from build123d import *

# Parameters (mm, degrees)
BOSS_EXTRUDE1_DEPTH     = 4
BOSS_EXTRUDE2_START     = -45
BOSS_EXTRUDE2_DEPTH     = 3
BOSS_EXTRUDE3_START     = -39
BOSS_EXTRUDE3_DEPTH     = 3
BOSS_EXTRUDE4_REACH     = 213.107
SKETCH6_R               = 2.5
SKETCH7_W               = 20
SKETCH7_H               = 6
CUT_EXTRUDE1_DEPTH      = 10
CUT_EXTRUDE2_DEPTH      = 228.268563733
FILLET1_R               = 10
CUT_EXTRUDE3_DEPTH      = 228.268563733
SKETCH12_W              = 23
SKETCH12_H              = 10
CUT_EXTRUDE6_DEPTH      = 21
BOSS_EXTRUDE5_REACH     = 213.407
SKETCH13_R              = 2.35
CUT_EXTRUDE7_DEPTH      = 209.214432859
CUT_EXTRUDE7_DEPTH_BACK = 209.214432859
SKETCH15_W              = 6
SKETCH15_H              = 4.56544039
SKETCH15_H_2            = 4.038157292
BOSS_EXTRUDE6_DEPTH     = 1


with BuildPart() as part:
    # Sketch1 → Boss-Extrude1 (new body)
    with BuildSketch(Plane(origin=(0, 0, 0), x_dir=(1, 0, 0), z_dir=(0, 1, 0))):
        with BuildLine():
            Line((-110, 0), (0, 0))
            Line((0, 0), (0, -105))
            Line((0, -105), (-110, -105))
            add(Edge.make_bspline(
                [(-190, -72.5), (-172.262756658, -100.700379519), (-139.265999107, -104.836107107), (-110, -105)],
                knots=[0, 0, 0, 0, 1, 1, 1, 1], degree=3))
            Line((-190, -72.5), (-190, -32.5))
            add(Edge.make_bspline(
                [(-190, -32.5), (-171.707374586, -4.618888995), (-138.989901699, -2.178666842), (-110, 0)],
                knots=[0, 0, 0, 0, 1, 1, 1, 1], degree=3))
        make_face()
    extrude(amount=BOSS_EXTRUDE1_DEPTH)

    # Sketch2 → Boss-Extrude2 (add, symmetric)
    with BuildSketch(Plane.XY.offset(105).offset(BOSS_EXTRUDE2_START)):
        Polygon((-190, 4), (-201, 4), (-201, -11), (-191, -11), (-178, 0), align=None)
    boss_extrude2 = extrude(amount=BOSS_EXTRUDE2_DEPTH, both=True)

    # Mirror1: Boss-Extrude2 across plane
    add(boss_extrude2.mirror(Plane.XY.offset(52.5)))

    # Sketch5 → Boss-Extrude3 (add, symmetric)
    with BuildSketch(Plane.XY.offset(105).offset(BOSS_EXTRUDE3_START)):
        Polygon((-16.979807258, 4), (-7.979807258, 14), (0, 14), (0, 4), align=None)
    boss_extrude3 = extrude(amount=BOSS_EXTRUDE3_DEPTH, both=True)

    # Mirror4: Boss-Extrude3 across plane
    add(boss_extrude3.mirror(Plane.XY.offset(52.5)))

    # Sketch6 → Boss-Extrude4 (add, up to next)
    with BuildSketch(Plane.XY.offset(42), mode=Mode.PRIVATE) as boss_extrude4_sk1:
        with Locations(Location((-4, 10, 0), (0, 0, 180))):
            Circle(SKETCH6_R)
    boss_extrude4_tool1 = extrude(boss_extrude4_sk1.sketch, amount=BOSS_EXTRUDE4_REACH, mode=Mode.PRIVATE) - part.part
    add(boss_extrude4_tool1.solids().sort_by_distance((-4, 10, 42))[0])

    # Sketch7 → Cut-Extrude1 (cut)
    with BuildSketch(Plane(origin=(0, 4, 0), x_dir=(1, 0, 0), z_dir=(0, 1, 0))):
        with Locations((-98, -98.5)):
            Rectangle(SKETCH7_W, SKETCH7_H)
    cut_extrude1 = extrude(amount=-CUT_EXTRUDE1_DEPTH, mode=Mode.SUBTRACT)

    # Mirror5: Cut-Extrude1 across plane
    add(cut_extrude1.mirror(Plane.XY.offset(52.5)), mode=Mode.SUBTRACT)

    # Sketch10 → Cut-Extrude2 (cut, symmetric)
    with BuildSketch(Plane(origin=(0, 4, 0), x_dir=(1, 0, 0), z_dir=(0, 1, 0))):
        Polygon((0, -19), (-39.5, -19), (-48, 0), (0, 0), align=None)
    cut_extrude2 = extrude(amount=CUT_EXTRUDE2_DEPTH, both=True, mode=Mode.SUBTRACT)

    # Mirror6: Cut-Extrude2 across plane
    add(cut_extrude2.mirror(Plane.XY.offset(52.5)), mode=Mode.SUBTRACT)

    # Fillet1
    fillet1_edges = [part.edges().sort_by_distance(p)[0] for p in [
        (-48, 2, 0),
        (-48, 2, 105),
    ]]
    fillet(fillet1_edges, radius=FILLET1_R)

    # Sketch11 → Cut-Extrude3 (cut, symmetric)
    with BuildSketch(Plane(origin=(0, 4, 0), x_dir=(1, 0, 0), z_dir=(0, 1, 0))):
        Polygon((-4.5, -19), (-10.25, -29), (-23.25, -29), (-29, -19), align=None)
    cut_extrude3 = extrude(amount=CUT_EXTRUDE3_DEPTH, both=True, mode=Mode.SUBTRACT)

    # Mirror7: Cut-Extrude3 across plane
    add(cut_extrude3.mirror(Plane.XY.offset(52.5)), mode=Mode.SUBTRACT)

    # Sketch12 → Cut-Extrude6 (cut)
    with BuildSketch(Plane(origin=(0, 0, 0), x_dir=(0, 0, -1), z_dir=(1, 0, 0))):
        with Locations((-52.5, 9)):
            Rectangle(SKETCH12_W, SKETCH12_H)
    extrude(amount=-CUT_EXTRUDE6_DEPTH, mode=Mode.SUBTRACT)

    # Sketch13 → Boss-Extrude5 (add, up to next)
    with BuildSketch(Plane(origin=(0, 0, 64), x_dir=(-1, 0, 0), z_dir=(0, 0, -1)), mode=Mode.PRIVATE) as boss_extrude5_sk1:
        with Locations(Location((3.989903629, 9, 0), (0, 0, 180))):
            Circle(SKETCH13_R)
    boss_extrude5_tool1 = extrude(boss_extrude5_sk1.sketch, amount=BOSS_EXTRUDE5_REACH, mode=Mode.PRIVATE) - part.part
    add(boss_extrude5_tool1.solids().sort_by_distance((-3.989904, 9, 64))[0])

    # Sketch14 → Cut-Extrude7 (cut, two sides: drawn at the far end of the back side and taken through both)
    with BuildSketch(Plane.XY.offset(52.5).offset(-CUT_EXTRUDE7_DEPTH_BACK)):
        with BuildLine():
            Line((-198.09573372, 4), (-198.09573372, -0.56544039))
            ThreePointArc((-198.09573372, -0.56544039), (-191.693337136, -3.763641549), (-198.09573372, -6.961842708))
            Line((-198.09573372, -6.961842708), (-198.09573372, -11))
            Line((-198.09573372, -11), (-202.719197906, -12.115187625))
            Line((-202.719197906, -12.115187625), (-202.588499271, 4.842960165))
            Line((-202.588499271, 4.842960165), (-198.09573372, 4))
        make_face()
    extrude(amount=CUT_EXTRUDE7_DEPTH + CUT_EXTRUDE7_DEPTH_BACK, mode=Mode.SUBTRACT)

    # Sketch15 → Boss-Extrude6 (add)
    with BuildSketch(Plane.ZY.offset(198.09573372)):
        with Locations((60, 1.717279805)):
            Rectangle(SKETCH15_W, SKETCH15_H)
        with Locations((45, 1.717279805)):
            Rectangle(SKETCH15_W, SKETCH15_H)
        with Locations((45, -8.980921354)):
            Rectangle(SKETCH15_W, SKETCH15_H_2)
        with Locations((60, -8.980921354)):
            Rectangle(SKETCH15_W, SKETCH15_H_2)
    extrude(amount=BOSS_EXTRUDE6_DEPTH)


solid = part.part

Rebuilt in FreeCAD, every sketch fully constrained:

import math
import FreeCAD as App
import Part
import Sketcher
from FreeCAD import Vector
Q = App.Units.Quantity


def edges_at(feature, points):
    """Names of the edges that pass closest to the given points."""
    edges = feature.Shape.Edges
    near = lambda p: min(range(len(edges)), key=lambda i: edges[i].distToShape(Part.Vertex(*p))[0])
    return sorted({f"Edge{near(p) + 1}" for p in points})


def add_polygon(sketch, points):
    """Adds a closed chain of lines whose ends are joined by coincident constraints."""
    first, n = sketch.GeometryCount, len(points)
    for a, b in zip(points, points[1:] + points[:1]):
        sketch.addGeometry(Part.LineSegment(App.Vector(*a, 0), App.Vector(*b, 0)), False)
    for i in range(n):
        sketch.addConstraint(Sketcher.Constraint("Coincident", first + i, 2, first + (i + 1) % n, 1))

doc = App.newDocument("Part")
body = doc.addObject("PartDesign::Body", "Body")

# Sketch on XZ plane
sketch1 = doc.addObject("Sketcher::SketchObject", "Sketch")
body.addObject(sketch1)
sketch1.AttachmentSupport = (doc.XZ_Plane, [""])
sketch1.MapMode = "FlatFace"
sketch1.addGeometry(Part.LineSegment(Vector(0, 0, 0), Vector(-110, 0, 0)), False)
sketch1.addGeometry(Part.BSplineCurve([Vector(-190, 32.5, 0), Vector(-171.707375, 4.618889, 0), Vector(-138.989902, 2.178667, 0), Vector(-110, 0, 0)], [4, 4], [0, 1], False, 3, [1, 1, 1, 1], False), False)
sketch1.addGeometry(Part.LineSegment(Vector(-190, 32.5, 0), Vector(-190, 72.5, 0)), False)
sketch1.addGeometry(Part.BSplineCurve([Vector(-190, 72.5, 0), Vector(-172.262757, 100.70038, 0), Vector(-139.265999, 104.836107, 0), Vector(-110, 105, 0)], [4, 4], [0, 1], False, 3, [1, 1, 1, 1], False), False)
sketch1.addGeometry(Part.LineSegment(Vector(-110, 105, 0), Vector(0, 105, 0)), False)
sketch1.addGeometry(Part.LineSegment(Vector(0, 105, 0), Vector(0, 0, 0)), False)
sketch1.addConstraint(Sketcher.Constraint("Block", 1))
sketch1.addConstraint(Sketcher.Constraint("Block", 3))
sketch1.addConstraint(Sketcher.Constraint("Coincident", 0, 2, 1, 2))
sketch1.addConstraint(Sketcher.Constraint("Coincident", 1, 1, 2, 1))
sketch1.addConstraint(Sketcher.Constraint("Coincident", 2, 2, 3, 1))
sketch1.addConstraint(Sketcher.Constraint("Coincident", 3, 2, 4, 1))
sketch1.addConstraint(Sketcher.Constraint("Coincident", 4, 2, 5, 1))
sketch1.addConstraint(Sketcher.Constraint("Coincident", 5, 2, 0, 1))
sketch1.addConstraint(Sketcher.Constraint("Horizontal", 0))
sketch1.addConstraint(Sketcher.Constraint("Horizontal", 4))
sketch1.addConstraint(Sketcher.Constraint("Vertical", 5))
sketch1.addConstraint(Sketcher.Constraint("PointOnObject", 4, 2, -2))
pad1 = doc.addObject("PartDesign::Pad", "Pad")
body.addObject(pad1)
pad1.Profile = sketch1
pad1.Length = 4
pad1.Reversed = True

# Sketch on XY plane
sketch2 = doc.addObject("Sketcher::SketchObject", "Sketch001")
body.addObject(sketch2)
sketch2.AttachmentSupport = (doc.XY_Plane, [""])
sketch2.MapMode = "FlatFace"
sketch2.AttachmentOffset = App.Placement(Vector(0, 0, 60), App.Rotation())
add_polygon(sketch2, [(-190, 4), (-201, 4), (-201, -11), (-191, -11), (-178, 0)])  # lines 0-4
sketch2.addConstraint(Sketcher.Constraint("Horizontal", 0))
sketch2.addConstraint(Sketcher.Constraint("Vertical", 1))
sketch2.addConstraint(Sketcher.Constraint("Horizontal", 2))
sketch2.addConstraint(Sketcher.Constraint("PointOnObject", 3, 2, -1))
sketch2.addConstraint(Sketcher.Constraint("DistanceX", 0, 2, 0, 1, Q("11 mm")))
sketch2.addConstraint(Sketcher.Constraint("DistanceX", 2, 1, 2, 2, Q("10 mm")))
sketch2.addConstraint(Sketcher.Constraint("DistanceY", 1, 2, 1, 1, Q("15 mm")))
sketch2.addConstraint(Sketcher.Constraint("DistanceX", 0, 2, -1, 1, Q("201 mm")))
sketch2.addConstraint(Sketcher.Constraint("DistanceY", -1, 1, 0, 2, Q("4 mm")))
sketch2.addConstraint(Sketcher.Constraint("DistanceX", 3, 2, -1, 1, Q("178 mm")))
pad2 = doc.addObject("PartDesign::Pad", "Pad001")
body.addObject(pad2)
pad2.Profile = sketch2
pad2.Length = 6
pad2.Midplane = True
doc.recompute()

datumplane = doc.addObject("PartDesign::Plane", "DatumPlane")
body.addObject(datumplane)
datumplane.AttachmentSupport = (doc.XY_Plane, [""])
datumplane.MapMode = "FlatFace"
datumplane.AttachmentOffset = App.Placement(Vector(0, 0, 52.5), App.Rotation())
mirrored = doc.addObject("PartDesign::Mirrored", "Mirrored")
body.addObject(mirrored)
mirrored.Originals = [pad2]
mirrored.MirrorPlane = (datumplane, [""])
body.Tip = mirrored

# Sketch on XY plane
sketch3 = doc.addObject("Sketcher::SketchObject", "Sketch002")
body.addObject(sketch3)
sketch3.AttachmentSupport = (doc.XY_Plane, [""])
sketch3.MapMode = "FlatFace"
sketch3.AttachmentOffset = App.Placement(Vector(0, 0, 66), App.Rotation())
add_polygon(sketch3, [(-8, 14), (-17, 4), (0, 4), (0, 14)])  # lines 0-3
sketch3.addConstraint(Sketcher.Constraint("Horizontal", 1))
sketch3.addConstraint(Sketcher.Constraint("Vertical", 2))
sketch3.addConstraint(Sketcher.Constraint("Horizontal", 3))
sketch3.addConstraint(Sketcher.Constraint("PointOnObject", 1, 2, -2))
sketch3.addConstraint(Sketcher.Constraint("DistanceY", 2, 1, 2, 2, Q("10 mm")))
sketch3.addConstraint(Sketcher.Constraint("DistanceY", -1, 1, 0, 2, Q("4 mm")))
sketch3.addConstraint(Sketcher.Constraint("DistanceX", 0, 2, 3, 2, Q("9 mm")))
sketch3.addConstraint(Sketcher.Constraint("DistanceX", 1, 1, 1, 2, Q("16.979807 mm")))
pad3 = doc.addObject("PartDesign::Pad", "Pad002")
body.addObject(pad3)
pad3.Profile = sketch3
pad3.Length = 6
pad3.Midplane = True
doc.recompute()

datumplane2 = doc.addObject("PartDesign::Plane", "DatumPlane001")
body.addObject(datumplane2)
datumplane2.AttachmentSupport = (doc.XY_Plane, [""])
datumplane2.MapMode = "FlatFace"
datumplane2.AttachmentOffset = App.Placement(Vector(0, 0, 52.5), App.Rotation())
mirrored2 = doc.addObject("PartDesign::Mirrored", "Mirrored001")
body.addObject(mirrored2)
mirrored2.Originals = [pad3]
mirrored2.MirrorPlane = (datumplane2, [""])
body.Tip = mirrored2

# Sketch on XY plane
sketch4 = doc.addObject("Sketcher::SketchObject", "Sketch003")
body.addObject(sketch4)
sketch4.AttachmentSupport = (doc.XY_Plane, [""])
sketch4.MapMode = "FlatFace"
sketch4.AttachmentOffset = App.Placement(Vector(0, 0, 42), App.Rotation())
sketch4.addGeometry(Part.Circle(Vector(-4, 10, 0), Vector(0, 0, 1), 2.5), False)
sketch4.addConstraint(Sketcher.Constraint("Diameter", 0, Q("5 mm")))
sketch4.addConstraint(Sketcher.Constraint("DistanceX", 0, 3, -1, 1, Q("4 mm")))
sketch4.addConstraint(Sketcher.Constraint("DistanceY", -1, 1, 0, 3, Q("10 mm")))
pad4 = doc.addObject("PartDesign::Pad", "Pad003")
body.addObject(pad4)
pad4.Profile = sketch4
pad4.Type = "UpToFirst"

# Sketch on XZ plane
sketch5 = doc.addObject("Sketcher::SketchObject", "Sketch004")
body.addObject(sketch5)
sketch5.AttachmentSupport = (doc.XZ_Plane, [""])
sketch5.MapMode = "FlatFace"
sketch5.AttachmentOffset = App.Placement(Vector(0, 0, -4), App.Rotation())
add_polygon(sketch5, [(-108, 96), (-108, 102), (-88, 102), (-88, 96)])  # lines 0-3
sketch5.addConstraint(Sketcher.Constraint("Vertical", 0))
sketch5.addConstraint(Sketcher.Constraint("Horizontal", 1))
sketch5.addConstraint(Sketcher.Constraint("Vertical", 2))
sketch5.addConstraint(Sketcher.Constraint("Horizontal", 3))
sketch5.addConstraint(Sketcher.Constraint("DistanceX", 1, 1, 1, 2, Q("20 mm")))
sketch5.addConstraint(Sketcher.Constraint("DistanceY", 0, 1, 0, 2, Q("6 mm")))
sketch5.addConstraint(Sketcher.Constraint("DistanceX", 0, 2, -1, 1, Q("108 mm")))
sketch5.addConstraint(Sketcher.Constraint("DistanceY", -1, 1, 0, 2, Q("101.5 mm")))
pocket1 = doc.addObject("PartDesign::Pocket", "Pocket")
body.addObject(pocket1)
pocket1.Profile = sketch5
pocket1.Length = 10
pocket1.Reversed = True
doc.recompute()

datumplane3 = doc.addObject("PartDesign::Plane", "DatumPlane002")
body.addObject(datumplane3)
datumplane3.AttachmentSupport = (doc.XY_Plane, [""])
datumplane3.MapMode = "FlatFace"
datumplane3.AttachmentOffset = App.Placement(Vector(0, 0, 52.5), App.Rotation())
mirrored3 = doc.addObject("PartDesign::Mirrored", "Mirrored002")
body.addObject(mirrored3)
mirrored3.Originals = [pocket1]
mirrored3.MirrorPlane = (datumplane3, [""])
body.Tip = mirrored3

# Sketch on XZ plane
sketch6 = doc.addObject("Sketcher::SketchObject", "Sketch005")
body.addObject(sketch6)
sketch6.AttachmentSupport = (doc.XZ_Plane, [""])
sketch6.MapMode = "FlatFace"
sketch6.AttachmentOffset = App.Placement(Vector(0, 0, -4), App.Rotation())
add_polygon(sketch6, [(-40, 19), (0, 19), (0, 0), (-48, 0)])  # lines 0-3
sketch6.addConstraint(Sketcher.Constraint("Horizontal", 0))
sketch6.addConstraint(Sketcher.Constraint("Vertical", 1))
sketch6.addConstraint(Sketcher.Constraint("Horizontal", 2))
sketch6.addConstraint(Sketcher.Constraint("Coincident", 1, 2, -1, 1))
sketch6.addConstraint(Sketcher.Constraint("DistanceX", 2, 2, 2, 1, Q("48 mm")))
sketch6.addConstraint(Sketcher.Constraint("DistanceY", 1, 2, 1, 1, Q("19 mm")))
sketch6.addConstraint(Sketcher.Constraint("DistanceX", 0, 1, 0, 2, Q("39.5 mm")))
pocket2 = doc.addObject("PartDesign::Pocket", "Pocket001")
body.addObject(pocket2)
pocket2.Profile = sketch6
pocket2.Length = 456.537127
pocket2.Midplane = True
doc.recompute()

datumplane4 = doc.addObject("PartDesign::Plane", "DatumPlane003")
body.addObject(datumplane4)
datumplane4.AttachmentSupport = (doc.XY_Plane, [""])
datumplane4.MapMode = "FlatFace"
datumplane4.AttachmentOffset = App.Placement(Vector(0, 0, 52.5), App.Rotation())
mirrored4 = doc.addObject("PartDesign::Mirrored", "Mirrored003")
body.addObject(mirrored4)
mirrored4.Originals = [pocket2]
mirrored4.MirrorPlane = (datumplane4, [""])
body.Tip = mirrored4
doc.recompute()

fillet = doc.addObject("PartDesign::Fillet", "Fillet")
body.addObject(fillet)
fillet.Base = (mirrored4, edges_at(mirrored4, [(-48, 2, 0), (-48, 2, 105)]))
fillet.Radius = 10

# Sketch on XZ plane
sketch7 = doc.addObject("Sketcher::SketchObject", "Sketch006")
body.addObject(sketch7)
sketch7.AttachmentSupport = (doc.XZ_Plane, [""])
sketch7.MapMode = "FlatFace"
sketch7.AttachmentOffset = App.Placement(Vector(0, 0, -4), App.Rotation())
add_polygon(sketch7, [(-10, 29), (-4, 19), (-29, 19), (-23, 29)])  # lines 0-3
sketch7.addConstraint(Sketcher.Constraint("Horizontal", 1))
sketch7.addConstraint(Sketcher.Constraint("Horizontal", 3))
sketch7.addConstraint(Sketcher.Constraint("Equal", 0, 2))
sketch7.addConstraint(Sketcher.Constraint("DistanceX", 3, 1, 3, 2, Q("13 mm")))
sketch7.addConstraint(Sketcher.Constraint("DistanceX", 1, 2, 1, 1, Q("24.5 mm")))
sketch7.addConstraint(Sketcher.Constraint("DistanceY", -1, 1, 0, 2, Q("19 mm")))
sketch7.addConstraint(Sketcher.Constraint("DistanceX", 1, 2, -1, 1, Q("29 mm")))
sketch7.addConstraint(Sketcher.Constraint("DistanceY", -1, 1, 2, 2, Q("29 mm")))
pocket3 = doc.addObject("PartDesign::Pocket", "Pocket002")
body.addObject(pocket3)
pocket3.Profile = sketch7
pocket3.Length = 456.537127
pocket3.Midplane = True
doc.recompute()

datumplane5 = doc.addObject("PartDesign::Plane", "DatumPlane004")
body.addObject(datumplane5)
datumplane5.AttachmentSupport = (doc.XY_Plane, [""])
datumplane5.MapMode = "FlatFace"
datumplane5.AttachmentOffset = App.Placement(Vector(0, 0, 52.5), App.Rotation())
mirrored5 = doc.addObject("PartDesign::Mirrored", "Mirrored004")
body.addObject(mirrored5)
mirrored5.Originals = [pocket3]
mirrored5.MirrorPlane = (datumplane5, [""])
body.Tip = mirrored5

# Sketch on YZ plane
sketch8 = doc.addObject("Sketcher::SketchObject", "Sketch007")
body.addObject(sketch8)
sketch8.AttachmentSupport = (doc.YZ_Plane, [""])
sketch8.MapMode = "FlatFace"
add_polygon(sketch8, [(14, 64), (4, 64), (4, 41), (14, 41)])  # lines 0-3
sketch8.addConstraint(Sketcher.Constraint("Horizontal", 0))
sketch8.addConstraint(Sketcher.Constraint("Vertical", 1))
sketch8.addConstraint(Sketcher.Constraint("Horizontal", 2))
sketch8.addConstraint(Sketcher.Constraint("Vertical", 3))
sketch8.addConstraint(Sketcher.Constraint("DistanceX", 0, 2, 0, 1, Q("10 mm")))
sketch8.addConstraint(Sketcher.Constraint("DistanceY", 1, 2, 1, 1, Q("23 mm")))
sketch8.addConstraint(Sketcher.Constraint("DistanceX", -1, 1, 0, 2, Q("4 mm")))
sketch8.addConstraint(Sketcher.Constraint("DistanceY", -1, 1, 0, 2, Q("64 mm")))
pocket4 = doc.addObject("PartDesign::Pocket", "Pocket003")
body.addObject(pocket4)
pocket4.Profile = sketch8
pocket4.Length = 21

# Sketch on XY plane
sketch9 = doc.addObject("Sketcher::SketchObject", "Sketch008")
body.addObject(sketch9)
sketch9.AttachmentSupport = (doc.XY_Plane, [""])
sketch9.MapMode = "FlatFace"
sketch9.AttachmentOffset = App.Placement(Vector(0, 0, 64), App.Rotation())
sketch9.addGeometry(Part.Circle(Vector(-4, 9, 0), Vector(0, 0, 1), 2.4), False)
sketch9.addConstraint(Sketcher.Constraint("Diameter", 0, Q("4.7 mm")))
sketch9.addConstraint(Sketcher.Constraint("DistanceY", -1, 1, 0, 3, Q("9 mm")))
sketch9.addConstraint(Sketcher.Constraint("DistanceX", 0, 3, -1, 1, Q("3.989904 mm")))
pad5 = doc.addObject("PartDesign::Pad", "Pad004")
body.addObject(pad5)
pad5.Profile = sketch9
pad5.Type = "UpToFirst"
pad5.Reversed = True

# Sketch on XY plane
sketch10 = doc.addObject("Sketcher::SketchObject", "Sketch009")
body.addObject(sketch10)
sketch10.AttachmentSupport = (doc.XY_Plane, [""])
sketch10.MapMode = "FlatFace"
sketch10.AttachmentOffset = App.Placement(Vector(0, 0, 52.5), App.Rotation())
sketch10.addGeometry(Part.LineSegment(Vector(-198.1, -0.6, 0), Vector(-198.1, 4, 0)), False)
sketch10.addGeometry(Part.LineSegment(Vector(-198.1, 4, 0), Vector(-202.6, 4.8, 0)), False)
sketch10.addGeometry(Part.LineSegment(Vector(-202.6, 4.8, 0), Vector(-202.7, -12.1, 0)), False)
sketch10.addGeometry(Part.LineSegment(Vector(-202.7, -12.1, 0), Vector(-198.1, -11, 0)), False)
sketch10.addGeometry(Part.LineSegment(Vector(-198.1, -11, 0), Vector(-198.1, -7, 0)), False)
sketch10.addGeometry(Part.ArcOfCircle(Part.Circle(Vector(-195.7, -3.8, 0), Vector(0, 0, 1), 4), math.radians(-127), math.radians(127)), False)
sketch10.addConstraint(Sketcher.Constraint("Coincident", 0, 2, 1, 1))
sketch10.addConstraint(Sketcher.Constraint("Coincident", 1, 2, 2, 1))
sketch10.addConstraint(Sketcher.Constraint("Coincident", 2, 2, 3, 1))
sketch10.addConstraint(Sketcher.Constraint("Coincident", 3, 2, 4, 1))
sketch10.addConstraint(Sketcher.Constraint("Coincident", 4, 2, 5, 1))
sketch10.addConstraint(Sketcher.Constraint("Coincident", 5, 2, 0, 1))
sketch10.addConstraint(Sketcher.Constraint("Vertical", 0))
sketch10.addConstraint(Sketcher.Constraint("Vertical", 4))
sketch10.addConstraint(Sketcher.Constraint("Vertical", 0, 2, 3, 2))
sketch10.addConstraint(Sketcher.Constraint("Radius", 5, Q("4 mm")))
sketch10.addConstraint(Sketcher.Constraint("DistanceY", -1, 1, 0, 2, Q("4 mm")))
sketch10.addConstraint(Sketcher.Constraint("DistanceY", 3, 2, -1, 1, Q("11 mm")))
sketch10.addConstraint(Sketcher.Constraint("DistanceY", 0, 1, 0, 2, Q("4.56544 mm")))
sketch10.addConstraint(Sketcher.Constraint("DistanceX", 1, 2, -1, 1, Q("202.588499 mm")))
sketch10.addConstraint(Sketcher.Constraint("DistanceY", 5, 3, 1, 2, Q("8.606602 mm")))
sketch10.addConstraint(Sketcher.Constraint("DistanceX", 2, 2, 1, 2, Q("0.130699 mm")))
sketch10.addConstraint(Sketcher.Constraint("DistanceY", 4, 2, 5, 3, Q("3.198201 mm")))
sketch10.addConstraint(Sketcher.Constraint("Distance", 2, Q("16.958651 mm")))
sketch10.addConstraint(Sketcher.Constraint("DistanceX", 2, 2, 5, 3, Q("7.025861 mm")))
pocket5 = doc.addObject("PartDesign::Pocket", "Pocket004")
body.addObject(pocket5)
pocket5.Profile = sketch10
pocket5.Type = "ThroughAll"
pocket5.Midplane = True

# Sketch on YZ plane
sketch11 = doc.addObject("Sketcher::SketchObject", "Sketch010")
body.addObject(sketch11)
sketch11.AttachmentSupport = (doc.YZ_Plane, [""])
sketch11.MapMode = "FlatFace"
sketch11.AttachmentOffset = App.Placement(Vector(0, 0, -198.095734), App.Rotation())
add_polygon(sketch11, [(4, 57), (-0.6, 57), (-0.6, 63), (4, 63)])  # lines 0-3
add_polygon(sketch11, [(4, 42), (-0.6, 42), (-0.6, 48), (4, 48)])  # lines 4-7
add_polygon(sketch11, [(-7, 42), (-11, 42), (-11, 48), (-7, 48)])  # lines 8-11
add_polygon(sketch11, [(-7, 57), (-11, 57), (-11, 63), (-7, 63)])  # lines 12-15
sketch11.addConstraint(Sketcher.Constraint("Horizontal", 0))
sketch11.addConstraint(Sketcher.Constraint("Vertical", 1))
sketch11.addConstraint(Sketcher.Constraint("Horizontal", 2))
sketch11.addConstraint(Sketcher.Constraint("Vertical", 3))
sketch11.addConstraint(Sketcher.Constraint("Horizontal", 4))
sketch11.addConstraint(Sketcher.Constraint("Vertical", 5))
sketch11.addConstraint(Sketcher.Constraint("Horizontal", 6))
sketch11.addConstraint(Sketcher.Constraint("Vertical", 7))
sketch11.addConstraint(Sketcher.Constraint("Horizontal", 8))
sketch11.addConstraint(Sketcher.Constraint("Vertical", 9))
sketch11.addConstraint(Sketcher.Constraint("Horizontal", 10))
sketch11.addConstraint(Sketcher.Constraint("Vertical", 11))
sketch11.addConstraint(Sketcher.Constraint("Horizontal", 12))
sketch11.addConstraint(Sketcher.Constraint("Vertical", 13))
sketch11.addConstraint(Sketcher.Constraint("Horizontal", 14))
sketch11.addConstraint(Sketcher.Constraint("Vertical", 15))
sketch11.addConstraint(Sketcher.Constraint("Horizontal", 7, 2, 8, 2))
sketch11.addConstraint(Sketcher.Constraint("Horizontal", 6, 2, 9, 2))
sketch11.addConstraint(Sketcher.Constraint("Horizontal", 3, 2, 12, 2))
sketch11.addConstraint(Sketcher.Constraint("Horizontal", 2, 2, 13, 2))
sketch11.addConstraint(Sketcher.Constraint("Vertical", 1, 2, 4, 2))
sketch11.addConstraint(Sketcher.Constraint("Vertical", 3, 2, 6, 2))
sketch11.addConstraint(Sketcher.Constraint("Vertical", 9, 2, 12, 2))
sketch11.addConstraint(Sketcher.Constraint("Vertical", 11, 2, 14, 2))
sketch11.addConstraint(Sketcher.Constraint("Equal", 3, 5))
sketch11.addConstraint(Sketcher.Constraint("DistanceY", 1, 1, 1, 2, Q("6 mm")))
sketch11.addConstraint(Sketcher.Constraint("DistanceY", -1, 1, 0, 2, Q("57 mm")))
sketch11.addConstraint(Sketcher.Constraint("DistanceX", -1, 1, 2, 2, Q("4 mm")))
sketch11.addConstraint(Sketcher.Constraint("DistanceY", -1, 1, 4, 2, Q("42 mm")))
sketch11.addConstraint(Sketcher.Constraint("DistanceX", 8, 2, -1, 1, Q("11 mm")))
sketch11.addConstraint(Sketcher.Constraint("DistanceX", 0, 2, 0, 1, Q("4.56544 mm")))
sketch11.addConstraint(Sketcher.Constraint("DistanceX", 8, 2, 8, 1, Q("4.038157 mm")))
pad6 = doc.addObject("PartDesign::Pad", "Pad005")
body.addObject(pad6)
pad6.Profile = sketch11
pad6.Length = 1
pad6.Reversed = True

doc.recompute()
